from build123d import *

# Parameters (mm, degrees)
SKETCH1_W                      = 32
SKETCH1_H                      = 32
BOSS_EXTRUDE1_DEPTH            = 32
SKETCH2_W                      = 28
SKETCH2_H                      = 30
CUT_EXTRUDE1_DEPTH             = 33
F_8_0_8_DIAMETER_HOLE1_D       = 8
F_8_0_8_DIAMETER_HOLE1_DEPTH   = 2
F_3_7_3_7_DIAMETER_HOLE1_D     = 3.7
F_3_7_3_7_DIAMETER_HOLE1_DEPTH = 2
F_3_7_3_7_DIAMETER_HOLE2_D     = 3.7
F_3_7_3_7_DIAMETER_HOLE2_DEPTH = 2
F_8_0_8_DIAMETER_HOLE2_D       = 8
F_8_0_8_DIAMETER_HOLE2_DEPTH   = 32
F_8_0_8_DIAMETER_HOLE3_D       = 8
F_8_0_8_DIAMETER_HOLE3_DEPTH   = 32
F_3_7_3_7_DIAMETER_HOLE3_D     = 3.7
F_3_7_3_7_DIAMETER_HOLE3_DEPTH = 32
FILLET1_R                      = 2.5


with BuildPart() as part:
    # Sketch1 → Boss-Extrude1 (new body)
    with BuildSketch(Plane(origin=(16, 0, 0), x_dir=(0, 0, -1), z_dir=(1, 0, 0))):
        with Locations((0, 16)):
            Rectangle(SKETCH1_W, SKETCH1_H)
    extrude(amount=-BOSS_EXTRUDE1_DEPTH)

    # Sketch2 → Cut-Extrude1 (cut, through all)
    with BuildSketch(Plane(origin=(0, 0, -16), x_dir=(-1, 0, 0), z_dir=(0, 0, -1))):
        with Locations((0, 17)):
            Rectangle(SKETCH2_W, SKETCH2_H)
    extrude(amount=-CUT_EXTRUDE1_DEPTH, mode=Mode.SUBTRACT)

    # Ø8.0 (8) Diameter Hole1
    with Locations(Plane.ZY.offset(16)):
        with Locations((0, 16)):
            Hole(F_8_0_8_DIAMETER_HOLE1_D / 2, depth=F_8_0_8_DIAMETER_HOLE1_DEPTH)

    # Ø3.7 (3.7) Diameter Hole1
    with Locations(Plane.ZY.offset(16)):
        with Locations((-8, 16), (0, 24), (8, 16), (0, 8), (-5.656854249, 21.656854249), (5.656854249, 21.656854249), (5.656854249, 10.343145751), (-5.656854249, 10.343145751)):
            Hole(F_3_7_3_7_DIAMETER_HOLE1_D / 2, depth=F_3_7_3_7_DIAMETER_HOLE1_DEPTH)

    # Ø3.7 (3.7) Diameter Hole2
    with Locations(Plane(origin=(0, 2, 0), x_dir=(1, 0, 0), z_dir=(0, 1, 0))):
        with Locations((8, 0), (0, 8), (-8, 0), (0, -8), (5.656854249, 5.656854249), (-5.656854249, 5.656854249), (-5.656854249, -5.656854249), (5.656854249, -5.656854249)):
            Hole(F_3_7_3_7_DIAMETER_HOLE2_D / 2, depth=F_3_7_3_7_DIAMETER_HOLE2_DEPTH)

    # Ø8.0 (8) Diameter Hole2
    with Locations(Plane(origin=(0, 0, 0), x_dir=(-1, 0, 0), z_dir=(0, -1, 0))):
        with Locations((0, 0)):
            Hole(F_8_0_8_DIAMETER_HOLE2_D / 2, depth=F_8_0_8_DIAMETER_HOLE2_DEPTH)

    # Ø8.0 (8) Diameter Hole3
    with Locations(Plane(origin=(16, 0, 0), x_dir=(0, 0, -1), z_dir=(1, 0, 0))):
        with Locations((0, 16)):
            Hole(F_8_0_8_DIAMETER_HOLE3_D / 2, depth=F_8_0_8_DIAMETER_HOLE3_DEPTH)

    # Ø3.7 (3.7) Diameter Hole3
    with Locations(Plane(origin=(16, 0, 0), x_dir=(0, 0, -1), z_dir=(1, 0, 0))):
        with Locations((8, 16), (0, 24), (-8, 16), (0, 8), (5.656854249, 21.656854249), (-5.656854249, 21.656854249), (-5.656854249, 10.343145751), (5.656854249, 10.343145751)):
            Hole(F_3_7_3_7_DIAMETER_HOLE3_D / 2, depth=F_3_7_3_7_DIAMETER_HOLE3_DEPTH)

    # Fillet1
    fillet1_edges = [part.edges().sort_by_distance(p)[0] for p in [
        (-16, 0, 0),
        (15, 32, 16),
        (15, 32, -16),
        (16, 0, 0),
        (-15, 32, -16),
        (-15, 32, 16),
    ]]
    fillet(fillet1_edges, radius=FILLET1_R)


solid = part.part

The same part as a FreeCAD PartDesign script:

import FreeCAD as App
import Part
import Sketcher
Q = App.Units.Quantity


def edges_at(feature, points):
    """Names of the edges that pass closest to the given points."""
    edges = feature.Shape.Edges
    near = lambda p: min(range(len(edges)), key=lambda i: edges[i].distToShape(Part.Vertex(*p))[0])
    return sorted({f"Edge{near(p) + 1}" for p in points})


def add_polygon(sketch, points):
    """Adds a closed chain of lines whose ends are joined by coincident constraints."""
    first, n = sketch.GeometryCount, len(points)
    for a, b in zip(points, points[1:] + points[:1]):
        sketch.addGeometry(Part.LineSegment(App.Vector(*a, 0), App.Vector(*b, 0)), False)
    for i in range(n):
        sketch.addConstraint(Sketcher.Constraint("Coincident", first + i, 2, first + (i + 1) % n, 1))

doc = App.newDocument("Part")
body = doc.addObject("PartDesign::Body", "Body")

# Sketch on YZ plane
sketch1 = doc.addObject("Sketcher::SketchObject", "Sketch")
body.addObject(sketch1)
sketch1.AttachmentSupport = (doc.YZ_Plane, [""])
sketch1.MapMode = "FlatFace"
sketch1.AttachmentOffset = App.Placement(App.Vector(0, 0, 16), App.Rotation())
add_polygon(sketch1, [(32, 16), (0, 16), (0, -16), (32, -16)])  # lines 0-3
sketch1.addConstraint([
    Sketcher.Constraint("Horizontal", 0),
    Sketcher.Constraint("Vertical", 1),
    Sketcher.Constraint("Horizontal", 2),
    Sketcher.Constraint("Vertical", 3),
    Sketcher.Constraint("Symmetric", 0, 2, 1, 2, -1, 1),
    Sketcher.Constraint("Equal", 2, 1),
    Sketcher.Constraint("DistanceX", 0, 2, 0, 1, Q("32 mm")),
])
pad1 = doc.addObject("PartDesign::Pad", "Pad")
body.addObject(pad1)
pad1.Profile = sketch1
pad1.Length = 32
pad1.Reversed = True

# Sketch on XY plane
sketch2 = doc.addObject("Sketcher::SketchObject", "Sketch001")
body.addObject(sketch2)
sketch2.AttachmentSupport = (doc.XY_Plane, [""])
sketch2.MapMode = "FlatFace"
sketch2.AttachmentOffset = App.Placement(App.Vector(0, 0, -16), App.Rotation())
add_polygon(sketch2, [(14, 32), (14, 2), (-14, 2), (-14, 32)])  # lines 0-3
sketch2.addConstraint([
    Sketcher.Constraint("Vertical", 0),
    Sketcher.Constraint("Horizontal", 1),
    Sketcher.Constraint("Vertical", 2),
    Sketcher.Constraint("Horizontal", 3),
    Sketcher.Constraint("DistanceX", 1, 2, 1, 1, Q("28 mm")),
    Sketcher.Constraint("DistanceY", 0, 2, 0, 1, Q("30 mm")),
    Sketcher.Constraint("DistanceX", -1, 1, 0, 2, Q("14 mm")),
    Sketcher.Constraint("DistanceY", -1, 1, 0, 2, Q("2 mm")),
])
pocket1 = doc.addObject("PartDesign::Pocket", "Pocket")
body.addObject(pocket1)
pocket1.Profile = sketch2
pocket1.Type = "ThroughAll"
pocket1.Reversed = True

# Sketch on YZ plane
sketch3 = doc.addObject("Sketcher::SketchObject", "Sketch002")
body.addObject(sketch3)
sketch3.AttachmentSupport = (doc.YZ_Plane, [""])
sketch3.MapMode = "FlatFace"
sketch3.AttachmentOffset = App.Placement(App.Vector(0, 0, -16), App.Rotation())
sketch3.addGeometry(Part.Circle(App.Vector(16, 0, 0), App.Vector(0, 0, 1), 4), False)
sketch3.addConstraint([
    Sketcher.Constraint("PointOnObject", 0, 3, -1),
    Sketcher.Constraint("Diameter", 0, Q("8 mm")),
    Sketcher.Constraint("DistanceX", -1, 1, 0, 3, Q("16 mm")),
])
doc.recompute()
hole = doc.addObject("PartDesign::Hole", "Hole")
body.addObject(hole)
hole.Profile = sketch3
hole.ThreadType = "None"
hole.Diameter = 8
hole.DepthType = "Dimension"
hole.Depth = 2
hole.DrillPoint = "Flat"
hole.Reversed = True

# Sketch on YZ plane
sketch4 = doc.addObject("Sketcher::SketchObject", "Sketch003")
body.addObject(sketch4)
sketch4.AttachmentSupport = (doc.YZ_Plane, [""])
sketch4.MapMode = "FlatFace"
sketch4.AttachmentOffset = App.Placement(App.Vector(0, 0, -16), App.Rotation())
sketch4.addGeometry([
    Part.Circle(App.Vector(16, -8, 0), App.Vector(0, 0, 1), 1.85),  # 0
    Part.Circle(App.Vector(24, 0, 0), App.Vector(0, 0, 1), 1.85),  # 1
    Part.Circle(App.Vector(16, 8, 0), App.Vector(0, 0, 1), 1.85),  # 2
    Part.Circle(App.Vector(8, 0, 0), App.Vector(0, 0, 1), 1.85),  # 3
    Part.Circle(App.Vector(21.656854, -5.656854, 0), App.Vector(0, 0, 1), 1.85),  # 4
    Part.Circle(App.Vector(21.656854, 5.656854, 0), App.Vector(0, 0, 1), 1.85),  # 5
    Part.Circle(App.Vector(10.343146, 5.656854, 0), App.Vector(0, 0, 1), 1.85),  # 6
    Part.Circle(App.Vector(10.343146, -5.656854, 0), App.Vector(0, 0, 1), 1.85),  # 7
], False)
sketch4.addConstraint([
    Sketcher.Constraint("Equal", 0, 1),
    Sketcher.Constraint("Equal", 1, 2),
    Sketcher.Constraint("Equal", 2, 3),
    Sketcher.Constraint("Equal", 3, 4),
    Sketcher.Constraint("Equal", 4, 5),
    Sketcher.Constraint("Equal", 5, 6),
    Sketcher.Constraint("Equal", 6, 7),
    Sketcher.Constraint("Symmetric", 0, 3, 2, 3, -1),
    Sketcher.Constraint("Symmetric", 4, 3, 5, 3, -1),
    Sketcher.Constraint("Symmetric", 6, 3, 7, 3, -1),
    Sketcher.Constraint("PointOnObject", 1, 3, -1),
    Sketcher.Constraint("PointOnObject", 3, 3, -1),
    Sketcher.Constraint("Horizontal", 5, 3, 6, 3),
    Sketcher.Constraint("Diameter", 0, Q("3.7 mm")),
    Sketcher.Constraint("DistanceX", -1, 1, 0, 3, Q("16 mm")),
    Sketcher.Constraint("DistanceY", 0, 3, -1, 1, Q("8 mm")),
    Sketcher.Constraint("DistanceX", -1, 1, 1, 3, Q("24 mm")),
    Sketcher.Constraint("DistanceX", -1, 1, 3, 3, Q("8 mm")),
    Sketcher.Constraint("DistanceY", 4, 3, 5, 3, Q("11.313708 mm")),
    Sketcher.Constraint("DistanceX", 6, 3, 5, 3, Q("11.313708 mm")),
    Sketcher.Constraint("DistanceX", -1, 1, 4, 3, Q("21.656854 mm")),
])
doc.recompute()
hole2 = doc.addObject("PartDesign::Hole", "Hole001")
body.addObject(hole2)
hole2.Profile = sketch4
hole2.ThreadType = "None"
hole2.Diameter = 3.7
hole2.DepthType = "Dimension"
hole2.Depth = 2
hole2.DrillPoint = "Flat"
hole2.Reversed = True

# Sketch on XZ plane
sketch5 = doc.addObject("Sketcher::SketchObject", "Sketch004")
body.addObject(sketch5)
sketch5.AttachmentSupport = (doc.XZ_Plane, [""])
sketch5.MapMode = "FlatFace"
sketch5.AttachmentOffset = App.Placement(App.Vector(0, 0, -2), App.Rotation())
sketch5.addGeometry([
    Part.Circle(App.Vector(8, 0, 0), App.Vector(0, 0, 1), 1.85),  # 0
    Part.Circle(App.Vector(0, -8, 0), App.Vector(0, 0, 1), 1.85),  # 1
    Part.Circle(App.Vector(-8, 0, 0), App.Vector(0, 0, 1), 1.85),  # 2
    Part.Circle(App.Vector(0, 8, 0), App.Vector(0, 0, 1), 1.85),  # 3
    Part.Circle(App.Vector(5.656854, -5.656854, 0), App.Vector(0, 0, 1), 1.85),  # 4
    Part.Circle(App.Vector(-5.656854, -5.656854, 0), App.Vector(0, 0, 1), 1.85),  # 5
    Part.Circle(App.Vector(-5.656854, 5.656854, 0), App.Vector(0, 0, 1), 1.85),  # 6
    Part.Circle(App.Vector(5.656854, 5.656854, 0), App.Vector(0, 0, 1), 1.85),  # 7
], False)
sketch5.addConstraint([
    Sketcher.Constraint("Equal", 0, 1),
    Sketcher.Constraint("Equal", 1, 2),
    Sketcher.Constraint("Equal", 2, 3),
    Sketcher.Constraint("Equal", 3, 4),
    Sketcher.Constraint("Equal", 4, 5),
    Sketcher.Constraint("Equal", 5, 6),
    Sketcher.Constraint("Equal", 6, 7),
    Sketcher.Constraint("Symmetric", 0, 3, 2, 3, -1, 1),
    Sketcher.Constraint("Symmetric", 1, 3, 3, 3, -1, 1),
    Sketcher.Constraint("Symmetric", 4, 3, 6, 3, -1, 1),
    Sketcher.Constraint("Symmetric", 5, 3, 7, 3, -1, 1),
    Sketcher.Constraint("Symmetric", 4, 3, 5, 3, -2),
    Sketcher.Constraint("PointOnObject", 0, 3, -1),
    Sketcher.Constraint("PointOnObject", 1, 3, -2),
    Sketcher.Constraint("Diameter", 0, Q("3.7 mm")),
    Sketcher.Constraint("DistanceX", -1, 1, 0, 3, Q("8 mm")),
    Sketcher.Constraint("DistanceY", 1, 3, -1, 1, Q("8 mm")),
    Sketcher.Constraint("DistanceX", 5, 3, 4, 3, Q("11.313708 mm")),
    Sketcher.Constraint("DistanceY", 5, 3, 6, 3, Q("11.313708 mm")),
])
doc.recompute()
hole3 = doc.addObject("PartDesign::Hole", "Hole002")
body.addObject(hole3)
hole3.Profile = sketch5
hole3.ThreadType = "None"
hole3.Diameter = 3.7
hole3.DepthType = "Dimension"
hole3.Depth = 2
hole3.DrillPoint = "Flat"
hole3.Reversed = True

# Sketch on XZ plane
sketch6 = doc.addObject("Sketcher::SketchObject", "Sketch005")
body.addObject(sketch6)
sketch6.AttachmentSupport = (doc.XZ_Plane, [""])
sketch6.MapMode = "FlatFace"
sketch6.addGeometry(Part.Circle(App.Vector(0, 0, 0), App.Vector(0, 0, 1), 4), False)
sketch6.addConstraint([
    Sketcher.Constraint("Coincident", 0, 3, -1, 1),
    Sketcher.Constraint("Diameter", 0, Q("8 mm")),
])
doc.recompute()
hole4 = doc.addObject("PartDesign::Hole", "Hole003")
body.addObject(hole4)
hole4.Profile = sketch6
hole4.ThreadType = "None"
hole4.Diameter = 8
hole4.DepthType = "Dimension"
hole4.Depth = 32
hole4.DrillPoint = "Flat"

# Sketch on YZ plane
sketch7 = doc.addObject("Sketcher::SketchObject", "Sketch006")
body.addObject(sketch7)
sketch7.AttachmentSupport = (doc.YZ_Plane, [""])
sketch7.MapMode = "FlatFace"
sketch7.AttachmentOffset = App.Placement(App.Vector(0, 0, 16), App.Rotation())
sketch7.addGeometry(Part.Circle(App.Vector(16, 0, 0), App.Vector(0, 0, 1), 4), False)
sketch7.addConstraint([
    Sketcher.Constraint("PointOnObject", 0, 3, -1),
    Sketcher.Constraint("Diameter", 0, Q("8 mm")),
    Sketcher.Constraint("DistanceX", -1, 1, 0, 3, Q("16 mm")),
])
doc.recompute()
hole5 = doc.addObject("PartDesign::Hole", "Hole004")
body.addObject(hole5)
hole5.Profile = sketch7
hole5.ThreadType = "None"
hole5.Diameter = 8
hole5.DepthType = "Dimension"
hole5.Depth = 32
hole5.DrillPoint = "Flat"

# Sketch on YZ plane
sketch8 = doc.addObject("Sketcher::SketchObject", "Sketch007")
body.addObject(sketch8)
sketch8.AttachmentSupport = (doc.YZ_Plane, [""])
sketch8.MapMode = "FlatFace"
sketch8.AttachmentOffset = App.Placement(App.Vector(0, 0, 16), App.Rotation())
sketch8.addGeometry([
    Part.Circle(App.Vector(16, -8, 0), App.Vector(0, 0, 1), 1.85),  # 0
    Part.Circle(App.Vector(24, 0, 0), App.Vector(0, 0, 1), 1.85),  # 1
    Part.Circle(App.Vector(16, 8, 0), App.Vector(0, 0, 1), 1.85),  # 2
    Part.Circle(App.Vector(8, 0, 0), App.Vector(0, 0, 1), 1.85),  # 3
    Part.Circle(App.Vector(21.656854, -5.656854, 0), App.Vector(0, 0, 1), 1.85),  # 4
    Part.Circle(App.Vector(21.656854, 5.656854, 0), App.Vector(0, 0, 1), 1.85),  # 5
    Part.Circle(App.Vector(10.343146, 5.656854, 0), App.Vector(0, 0, 1), 1.85),  # 6
    Part.Circle(App.Vector(10.343146, -5.656854, 0), App.Vector(0, 0, 1), 1.85),  # 7
], False)
sketch8.addConstraint([
    Sketcher.Constraint("Equal", 0, 1),
    Sketcher.Constraint("Equal", 1, 2),
    Sketcher.Constraint("Equal", 2, 3),
    Sketcher.Constraint("Equal", 3, 4),
    Sketcher.Constraint("Equal", 4, 5),
    Sketcher.Constraint("Equal", 5, 6),
    Sketcher.Constraint("Equal", 6, 7),
    Sketcher.Constraint("Symmetric", 0, 3, 2, 3, -1),
    Sketcher.Constraint("Symmetric", 4, 3, 5, 3, -1),
    Sketcher.Constraint("Symmetric", 6, 3, 7, 3, -1),
    Sketcher.Constraint("PointOnObject", 1, 3, -1),
    Sketcher.Constraint("PointOnObject", 3, 3, -1),
    Sketcher.Constraint("Horizontal", 5, 3, 6, 3),
    Sketcher.Constraint("Diameter", 0, Q("3.7 mm")),
    Sketcher.Constraint("DistanceX", -1, 1, 0, 3, Q("16 mm")),
    Sketcher.Constraint("DistanceY", 0, 3, -1, 1, Q("8 mm")),
    Sketcher.Constraint("DistanceX", -1, 1, 1, 3, Q("24 mm")),
    Sketcher.Constraint("DistanceX", -1, 1, 3, 3, Q("8 mm")),
    Sketcher.Constraint("DistanceY", 4, 3, 5, 3, Q("11.313708 mm")),
    Sketcher.Constraint("DistanceX", 6, 3, 5, 3, Q("11.313708 mm")),
    Sketcher.Constraint("DistanceX", -1, 1, 4, 3, Q("21.656854 mm")),
])
doc.recompute()
hole6 = doc.addObject("PartDesign::Hole", "Hole005")
body.addObject(hole6)
hole6.Profile = sketch8
hole6.ThreadType = "None"
hole6.Diameter = 3.7
hole6.DepthType = "Dimension"
hole6.Depth = 32
hole6.DrillPoint = "Flat"
doc.recompute()

fillet = doc.addObject("PartDesign::Fillet", "Fillet")
body.addObject(fillet)
fillet.Base = (hole6, edges_at(hole6, [
    (-16, 0, 0),
    (15, 32, 16),
    (15, 32, -16),
    (16, 0, 0),
    (-15, 32, -16),
    (-15, 32, 16),
]))
fillet.Radius = 2.5

doc.recompute()
